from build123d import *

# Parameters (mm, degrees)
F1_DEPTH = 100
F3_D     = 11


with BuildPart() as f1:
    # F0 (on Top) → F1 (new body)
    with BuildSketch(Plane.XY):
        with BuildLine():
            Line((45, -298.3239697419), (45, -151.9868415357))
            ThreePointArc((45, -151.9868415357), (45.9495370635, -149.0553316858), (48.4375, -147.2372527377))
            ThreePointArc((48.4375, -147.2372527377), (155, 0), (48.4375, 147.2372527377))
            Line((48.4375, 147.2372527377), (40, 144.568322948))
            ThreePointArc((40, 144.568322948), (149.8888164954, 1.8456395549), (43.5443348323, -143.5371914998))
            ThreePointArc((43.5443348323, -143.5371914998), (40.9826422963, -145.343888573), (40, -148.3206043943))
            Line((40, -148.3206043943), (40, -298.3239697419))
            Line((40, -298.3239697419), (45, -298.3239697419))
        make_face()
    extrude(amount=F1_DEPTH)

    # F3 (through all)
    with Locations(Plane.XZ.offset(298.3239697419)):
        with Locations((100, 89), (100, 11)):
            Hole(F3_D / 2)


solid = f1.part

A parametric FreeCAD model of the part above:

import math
import FreeCAD as App
import Part
import Sketcher
from FreeCAD import Vector
Q = App.Units.Quantity

doc = App.newDocument("Part")
body = doc.addObject("PartDesign::Body", "Body")

# Sketch on XY plane
sketch1 = body.newObject("Sketcher::SketchObject", "Sketch")
sketch1.AttachmentSupport = (doc.getObject("XY_Plane"), [""])
sketch1.MapMode = "FlatFace"
sketch1.addGeometry(Part.LineSegment(Vector(45, -298, 0), Vector(45, -152, 0)), False)
sketch1.addGeometry(Part.ArcOfCircle(Part.Circle(Vector(50, -152, 0), Vector(0, 0, 1), 5), math.radians(108), math.radians(180)), False)
sketch1.addGeometry(Part.ArcOfCircle(Part.Circle(Vector(0, 0, 0), Vector(0, 0, 1), 155), math.radians(-72), math.radians(72)), False)
sketch1.addGeometry(Part.LineSegment(Vector(48, 147, 0), Vector(40, 145, 0)), False)
sketch1.addGeometry(Part.ArcOfCircle(Part.Circle(Vector(0, 0, 0), Vector(0, 0, 1), 150), math.radians(-73), math.radians(74)), False)
sketch1.addGeometry(Part.ArcOfCircle(Part.Circle(Vector(45, -148, 0), Vector(0, 0, 1), 5), math.radians(107), math.radians(180)), False)
sketch1.addGeometry(Part.LineSegment(Vector(40, -148, 0), Vector(40, -298, 0)), False)
sketch1.addGeometry(Part.LineSegment(Vector(40, -298, 0), Vector(45, -298, 0)), False)
sketch1.addConstraint(Sketcher.Constraint("Tangent", 0, 2, 1, 2))
sketch1.addConstraint(Sketcher.Constraint("Tangent", 1, 1, 2, 1))
sketch1.addConstraint(Sketcher.Constraint("Coincident", 2, 2, 3, 1))
sketch1.addConstraint(Sketcher.Constraint("Coincident", 3, 2, 4, 2))
sketch1.addConstraint(Sketcher.Constraint("Tangent", 4, 1, 5, 1))
sketch1.addConstraint(Sketcher.Constraint("Tangent", 5, 2, 6, 1))
sketch1.addConstraint(Sketcher.Constraint("Coincident", 6, 2, 7, 1))
sketch1.addConstraint(Sketcher.Constraint("Coincident", 7, 2, 0, 1))
sketch1.addConstraint(Sketcher.Constraint("Vertical", 0))
sketch1.addConstraint(Sketcher.Constraint("Vertical", 6))
sketch1.addConstraint(Sketcher.Constraint("Horizontal", 7))
sketch1.addConstraint(Sketcher.Constraint("Coincident", 2, 3, -1, 1))
sketch1.addConstraint(Sketcher.Constraint("Equal", 1, 5))
sketch1.addConstraint(Sketcher.Constraint("PointOnObject", 4, 3, -1))
sketch1.addConstraint(Sketcher.Constraint("Vertical", 5, 3, 0, 2))
sketch1.addConstraint(Sketcher.Constraint("Vertical", 1, 1, 2, 2))
sketch1.addConstraint(Sketcher.Constraint("Vertical", 3, 2, 5, 2))
sketch1.addConstraint(Sketcher.Constraint("Radius", 1, Q("5 mm")))
sketch1.addConstraint(Sketcher.Constraint("Radius", 2, Q("155 mm")))
sketch1.addConstraint(Sketcher.Constraint("DistanceX", -1, 1, 1, 3, Q("50 mm")))
sketch1.addConstraint(Sketcher.Constraint("Radius", 4, Q("150.036381 mm")))
sketch1.addConstraint(Sketcher.Constraint("DistanceY", 0, 1, 0, 2, Q("146.337128 mm")))
sketch1.addConstraint(Sketcher.Constraint("DistanceY", 6, 2, 6, 1, Q("150.003365 mm")))
pad1 = body.newObject("PartDesign::Pad", "Pad")
pad1.Profile = sketch1
pad1.Length = 100

# Sketch on XZ plane
sketch2 = body.newObject("Sketcher::SketchObject", "Sketch001")
sketch2.AttachmentSupport = (doc.getObject("XZ_Plane"), [""])
sketch2.MapMode = "FlatFace"
sketch2.AttachmentOffset = App.Placement(Vector(0, 0, 298.32397), App.Rotation())
sketch2.addGeometry(Part.Circle(Vector(100, 89, 0), Vector(0, 0, 1), 6), False)
sketch2.addGeometry(Part.Circle(Vector(100, 11, 0), Vector(0, 0, 1), 6), False)
sketch2.addConstraint(Sketcher.Constraint("Equal", 0, 1))
sketch2.addConstraint(Sketcher.Constraint("Vertical", 0, 3, 1, 3))
sketch2.addConstraint(Sketcher.Constraint("Diameter", 0, Q("11 mm")))
sketch2.addConstraint(Sketcher.Constraint("DistanceX", -1, 1, 0, 3, Q("100 mm")))
sketch2.addConstraint(Sketcher.Constraint("DistanceY", -1, 1, 0, 3, Q("89 mm")))
sketch2.addConstraint(Sketcher.Constraint("DistanceY", -1, 1, 1, 3, Q("11 mm")))
doc.recompute()
hole = body.newObject("PartDesign::Hole", "Hole")
hole.Profile = sketch2
hole.ThreadType = "None"
hole.Diameter = 11
hole.DepthType = "ThroughAll"

doc.recompute()
